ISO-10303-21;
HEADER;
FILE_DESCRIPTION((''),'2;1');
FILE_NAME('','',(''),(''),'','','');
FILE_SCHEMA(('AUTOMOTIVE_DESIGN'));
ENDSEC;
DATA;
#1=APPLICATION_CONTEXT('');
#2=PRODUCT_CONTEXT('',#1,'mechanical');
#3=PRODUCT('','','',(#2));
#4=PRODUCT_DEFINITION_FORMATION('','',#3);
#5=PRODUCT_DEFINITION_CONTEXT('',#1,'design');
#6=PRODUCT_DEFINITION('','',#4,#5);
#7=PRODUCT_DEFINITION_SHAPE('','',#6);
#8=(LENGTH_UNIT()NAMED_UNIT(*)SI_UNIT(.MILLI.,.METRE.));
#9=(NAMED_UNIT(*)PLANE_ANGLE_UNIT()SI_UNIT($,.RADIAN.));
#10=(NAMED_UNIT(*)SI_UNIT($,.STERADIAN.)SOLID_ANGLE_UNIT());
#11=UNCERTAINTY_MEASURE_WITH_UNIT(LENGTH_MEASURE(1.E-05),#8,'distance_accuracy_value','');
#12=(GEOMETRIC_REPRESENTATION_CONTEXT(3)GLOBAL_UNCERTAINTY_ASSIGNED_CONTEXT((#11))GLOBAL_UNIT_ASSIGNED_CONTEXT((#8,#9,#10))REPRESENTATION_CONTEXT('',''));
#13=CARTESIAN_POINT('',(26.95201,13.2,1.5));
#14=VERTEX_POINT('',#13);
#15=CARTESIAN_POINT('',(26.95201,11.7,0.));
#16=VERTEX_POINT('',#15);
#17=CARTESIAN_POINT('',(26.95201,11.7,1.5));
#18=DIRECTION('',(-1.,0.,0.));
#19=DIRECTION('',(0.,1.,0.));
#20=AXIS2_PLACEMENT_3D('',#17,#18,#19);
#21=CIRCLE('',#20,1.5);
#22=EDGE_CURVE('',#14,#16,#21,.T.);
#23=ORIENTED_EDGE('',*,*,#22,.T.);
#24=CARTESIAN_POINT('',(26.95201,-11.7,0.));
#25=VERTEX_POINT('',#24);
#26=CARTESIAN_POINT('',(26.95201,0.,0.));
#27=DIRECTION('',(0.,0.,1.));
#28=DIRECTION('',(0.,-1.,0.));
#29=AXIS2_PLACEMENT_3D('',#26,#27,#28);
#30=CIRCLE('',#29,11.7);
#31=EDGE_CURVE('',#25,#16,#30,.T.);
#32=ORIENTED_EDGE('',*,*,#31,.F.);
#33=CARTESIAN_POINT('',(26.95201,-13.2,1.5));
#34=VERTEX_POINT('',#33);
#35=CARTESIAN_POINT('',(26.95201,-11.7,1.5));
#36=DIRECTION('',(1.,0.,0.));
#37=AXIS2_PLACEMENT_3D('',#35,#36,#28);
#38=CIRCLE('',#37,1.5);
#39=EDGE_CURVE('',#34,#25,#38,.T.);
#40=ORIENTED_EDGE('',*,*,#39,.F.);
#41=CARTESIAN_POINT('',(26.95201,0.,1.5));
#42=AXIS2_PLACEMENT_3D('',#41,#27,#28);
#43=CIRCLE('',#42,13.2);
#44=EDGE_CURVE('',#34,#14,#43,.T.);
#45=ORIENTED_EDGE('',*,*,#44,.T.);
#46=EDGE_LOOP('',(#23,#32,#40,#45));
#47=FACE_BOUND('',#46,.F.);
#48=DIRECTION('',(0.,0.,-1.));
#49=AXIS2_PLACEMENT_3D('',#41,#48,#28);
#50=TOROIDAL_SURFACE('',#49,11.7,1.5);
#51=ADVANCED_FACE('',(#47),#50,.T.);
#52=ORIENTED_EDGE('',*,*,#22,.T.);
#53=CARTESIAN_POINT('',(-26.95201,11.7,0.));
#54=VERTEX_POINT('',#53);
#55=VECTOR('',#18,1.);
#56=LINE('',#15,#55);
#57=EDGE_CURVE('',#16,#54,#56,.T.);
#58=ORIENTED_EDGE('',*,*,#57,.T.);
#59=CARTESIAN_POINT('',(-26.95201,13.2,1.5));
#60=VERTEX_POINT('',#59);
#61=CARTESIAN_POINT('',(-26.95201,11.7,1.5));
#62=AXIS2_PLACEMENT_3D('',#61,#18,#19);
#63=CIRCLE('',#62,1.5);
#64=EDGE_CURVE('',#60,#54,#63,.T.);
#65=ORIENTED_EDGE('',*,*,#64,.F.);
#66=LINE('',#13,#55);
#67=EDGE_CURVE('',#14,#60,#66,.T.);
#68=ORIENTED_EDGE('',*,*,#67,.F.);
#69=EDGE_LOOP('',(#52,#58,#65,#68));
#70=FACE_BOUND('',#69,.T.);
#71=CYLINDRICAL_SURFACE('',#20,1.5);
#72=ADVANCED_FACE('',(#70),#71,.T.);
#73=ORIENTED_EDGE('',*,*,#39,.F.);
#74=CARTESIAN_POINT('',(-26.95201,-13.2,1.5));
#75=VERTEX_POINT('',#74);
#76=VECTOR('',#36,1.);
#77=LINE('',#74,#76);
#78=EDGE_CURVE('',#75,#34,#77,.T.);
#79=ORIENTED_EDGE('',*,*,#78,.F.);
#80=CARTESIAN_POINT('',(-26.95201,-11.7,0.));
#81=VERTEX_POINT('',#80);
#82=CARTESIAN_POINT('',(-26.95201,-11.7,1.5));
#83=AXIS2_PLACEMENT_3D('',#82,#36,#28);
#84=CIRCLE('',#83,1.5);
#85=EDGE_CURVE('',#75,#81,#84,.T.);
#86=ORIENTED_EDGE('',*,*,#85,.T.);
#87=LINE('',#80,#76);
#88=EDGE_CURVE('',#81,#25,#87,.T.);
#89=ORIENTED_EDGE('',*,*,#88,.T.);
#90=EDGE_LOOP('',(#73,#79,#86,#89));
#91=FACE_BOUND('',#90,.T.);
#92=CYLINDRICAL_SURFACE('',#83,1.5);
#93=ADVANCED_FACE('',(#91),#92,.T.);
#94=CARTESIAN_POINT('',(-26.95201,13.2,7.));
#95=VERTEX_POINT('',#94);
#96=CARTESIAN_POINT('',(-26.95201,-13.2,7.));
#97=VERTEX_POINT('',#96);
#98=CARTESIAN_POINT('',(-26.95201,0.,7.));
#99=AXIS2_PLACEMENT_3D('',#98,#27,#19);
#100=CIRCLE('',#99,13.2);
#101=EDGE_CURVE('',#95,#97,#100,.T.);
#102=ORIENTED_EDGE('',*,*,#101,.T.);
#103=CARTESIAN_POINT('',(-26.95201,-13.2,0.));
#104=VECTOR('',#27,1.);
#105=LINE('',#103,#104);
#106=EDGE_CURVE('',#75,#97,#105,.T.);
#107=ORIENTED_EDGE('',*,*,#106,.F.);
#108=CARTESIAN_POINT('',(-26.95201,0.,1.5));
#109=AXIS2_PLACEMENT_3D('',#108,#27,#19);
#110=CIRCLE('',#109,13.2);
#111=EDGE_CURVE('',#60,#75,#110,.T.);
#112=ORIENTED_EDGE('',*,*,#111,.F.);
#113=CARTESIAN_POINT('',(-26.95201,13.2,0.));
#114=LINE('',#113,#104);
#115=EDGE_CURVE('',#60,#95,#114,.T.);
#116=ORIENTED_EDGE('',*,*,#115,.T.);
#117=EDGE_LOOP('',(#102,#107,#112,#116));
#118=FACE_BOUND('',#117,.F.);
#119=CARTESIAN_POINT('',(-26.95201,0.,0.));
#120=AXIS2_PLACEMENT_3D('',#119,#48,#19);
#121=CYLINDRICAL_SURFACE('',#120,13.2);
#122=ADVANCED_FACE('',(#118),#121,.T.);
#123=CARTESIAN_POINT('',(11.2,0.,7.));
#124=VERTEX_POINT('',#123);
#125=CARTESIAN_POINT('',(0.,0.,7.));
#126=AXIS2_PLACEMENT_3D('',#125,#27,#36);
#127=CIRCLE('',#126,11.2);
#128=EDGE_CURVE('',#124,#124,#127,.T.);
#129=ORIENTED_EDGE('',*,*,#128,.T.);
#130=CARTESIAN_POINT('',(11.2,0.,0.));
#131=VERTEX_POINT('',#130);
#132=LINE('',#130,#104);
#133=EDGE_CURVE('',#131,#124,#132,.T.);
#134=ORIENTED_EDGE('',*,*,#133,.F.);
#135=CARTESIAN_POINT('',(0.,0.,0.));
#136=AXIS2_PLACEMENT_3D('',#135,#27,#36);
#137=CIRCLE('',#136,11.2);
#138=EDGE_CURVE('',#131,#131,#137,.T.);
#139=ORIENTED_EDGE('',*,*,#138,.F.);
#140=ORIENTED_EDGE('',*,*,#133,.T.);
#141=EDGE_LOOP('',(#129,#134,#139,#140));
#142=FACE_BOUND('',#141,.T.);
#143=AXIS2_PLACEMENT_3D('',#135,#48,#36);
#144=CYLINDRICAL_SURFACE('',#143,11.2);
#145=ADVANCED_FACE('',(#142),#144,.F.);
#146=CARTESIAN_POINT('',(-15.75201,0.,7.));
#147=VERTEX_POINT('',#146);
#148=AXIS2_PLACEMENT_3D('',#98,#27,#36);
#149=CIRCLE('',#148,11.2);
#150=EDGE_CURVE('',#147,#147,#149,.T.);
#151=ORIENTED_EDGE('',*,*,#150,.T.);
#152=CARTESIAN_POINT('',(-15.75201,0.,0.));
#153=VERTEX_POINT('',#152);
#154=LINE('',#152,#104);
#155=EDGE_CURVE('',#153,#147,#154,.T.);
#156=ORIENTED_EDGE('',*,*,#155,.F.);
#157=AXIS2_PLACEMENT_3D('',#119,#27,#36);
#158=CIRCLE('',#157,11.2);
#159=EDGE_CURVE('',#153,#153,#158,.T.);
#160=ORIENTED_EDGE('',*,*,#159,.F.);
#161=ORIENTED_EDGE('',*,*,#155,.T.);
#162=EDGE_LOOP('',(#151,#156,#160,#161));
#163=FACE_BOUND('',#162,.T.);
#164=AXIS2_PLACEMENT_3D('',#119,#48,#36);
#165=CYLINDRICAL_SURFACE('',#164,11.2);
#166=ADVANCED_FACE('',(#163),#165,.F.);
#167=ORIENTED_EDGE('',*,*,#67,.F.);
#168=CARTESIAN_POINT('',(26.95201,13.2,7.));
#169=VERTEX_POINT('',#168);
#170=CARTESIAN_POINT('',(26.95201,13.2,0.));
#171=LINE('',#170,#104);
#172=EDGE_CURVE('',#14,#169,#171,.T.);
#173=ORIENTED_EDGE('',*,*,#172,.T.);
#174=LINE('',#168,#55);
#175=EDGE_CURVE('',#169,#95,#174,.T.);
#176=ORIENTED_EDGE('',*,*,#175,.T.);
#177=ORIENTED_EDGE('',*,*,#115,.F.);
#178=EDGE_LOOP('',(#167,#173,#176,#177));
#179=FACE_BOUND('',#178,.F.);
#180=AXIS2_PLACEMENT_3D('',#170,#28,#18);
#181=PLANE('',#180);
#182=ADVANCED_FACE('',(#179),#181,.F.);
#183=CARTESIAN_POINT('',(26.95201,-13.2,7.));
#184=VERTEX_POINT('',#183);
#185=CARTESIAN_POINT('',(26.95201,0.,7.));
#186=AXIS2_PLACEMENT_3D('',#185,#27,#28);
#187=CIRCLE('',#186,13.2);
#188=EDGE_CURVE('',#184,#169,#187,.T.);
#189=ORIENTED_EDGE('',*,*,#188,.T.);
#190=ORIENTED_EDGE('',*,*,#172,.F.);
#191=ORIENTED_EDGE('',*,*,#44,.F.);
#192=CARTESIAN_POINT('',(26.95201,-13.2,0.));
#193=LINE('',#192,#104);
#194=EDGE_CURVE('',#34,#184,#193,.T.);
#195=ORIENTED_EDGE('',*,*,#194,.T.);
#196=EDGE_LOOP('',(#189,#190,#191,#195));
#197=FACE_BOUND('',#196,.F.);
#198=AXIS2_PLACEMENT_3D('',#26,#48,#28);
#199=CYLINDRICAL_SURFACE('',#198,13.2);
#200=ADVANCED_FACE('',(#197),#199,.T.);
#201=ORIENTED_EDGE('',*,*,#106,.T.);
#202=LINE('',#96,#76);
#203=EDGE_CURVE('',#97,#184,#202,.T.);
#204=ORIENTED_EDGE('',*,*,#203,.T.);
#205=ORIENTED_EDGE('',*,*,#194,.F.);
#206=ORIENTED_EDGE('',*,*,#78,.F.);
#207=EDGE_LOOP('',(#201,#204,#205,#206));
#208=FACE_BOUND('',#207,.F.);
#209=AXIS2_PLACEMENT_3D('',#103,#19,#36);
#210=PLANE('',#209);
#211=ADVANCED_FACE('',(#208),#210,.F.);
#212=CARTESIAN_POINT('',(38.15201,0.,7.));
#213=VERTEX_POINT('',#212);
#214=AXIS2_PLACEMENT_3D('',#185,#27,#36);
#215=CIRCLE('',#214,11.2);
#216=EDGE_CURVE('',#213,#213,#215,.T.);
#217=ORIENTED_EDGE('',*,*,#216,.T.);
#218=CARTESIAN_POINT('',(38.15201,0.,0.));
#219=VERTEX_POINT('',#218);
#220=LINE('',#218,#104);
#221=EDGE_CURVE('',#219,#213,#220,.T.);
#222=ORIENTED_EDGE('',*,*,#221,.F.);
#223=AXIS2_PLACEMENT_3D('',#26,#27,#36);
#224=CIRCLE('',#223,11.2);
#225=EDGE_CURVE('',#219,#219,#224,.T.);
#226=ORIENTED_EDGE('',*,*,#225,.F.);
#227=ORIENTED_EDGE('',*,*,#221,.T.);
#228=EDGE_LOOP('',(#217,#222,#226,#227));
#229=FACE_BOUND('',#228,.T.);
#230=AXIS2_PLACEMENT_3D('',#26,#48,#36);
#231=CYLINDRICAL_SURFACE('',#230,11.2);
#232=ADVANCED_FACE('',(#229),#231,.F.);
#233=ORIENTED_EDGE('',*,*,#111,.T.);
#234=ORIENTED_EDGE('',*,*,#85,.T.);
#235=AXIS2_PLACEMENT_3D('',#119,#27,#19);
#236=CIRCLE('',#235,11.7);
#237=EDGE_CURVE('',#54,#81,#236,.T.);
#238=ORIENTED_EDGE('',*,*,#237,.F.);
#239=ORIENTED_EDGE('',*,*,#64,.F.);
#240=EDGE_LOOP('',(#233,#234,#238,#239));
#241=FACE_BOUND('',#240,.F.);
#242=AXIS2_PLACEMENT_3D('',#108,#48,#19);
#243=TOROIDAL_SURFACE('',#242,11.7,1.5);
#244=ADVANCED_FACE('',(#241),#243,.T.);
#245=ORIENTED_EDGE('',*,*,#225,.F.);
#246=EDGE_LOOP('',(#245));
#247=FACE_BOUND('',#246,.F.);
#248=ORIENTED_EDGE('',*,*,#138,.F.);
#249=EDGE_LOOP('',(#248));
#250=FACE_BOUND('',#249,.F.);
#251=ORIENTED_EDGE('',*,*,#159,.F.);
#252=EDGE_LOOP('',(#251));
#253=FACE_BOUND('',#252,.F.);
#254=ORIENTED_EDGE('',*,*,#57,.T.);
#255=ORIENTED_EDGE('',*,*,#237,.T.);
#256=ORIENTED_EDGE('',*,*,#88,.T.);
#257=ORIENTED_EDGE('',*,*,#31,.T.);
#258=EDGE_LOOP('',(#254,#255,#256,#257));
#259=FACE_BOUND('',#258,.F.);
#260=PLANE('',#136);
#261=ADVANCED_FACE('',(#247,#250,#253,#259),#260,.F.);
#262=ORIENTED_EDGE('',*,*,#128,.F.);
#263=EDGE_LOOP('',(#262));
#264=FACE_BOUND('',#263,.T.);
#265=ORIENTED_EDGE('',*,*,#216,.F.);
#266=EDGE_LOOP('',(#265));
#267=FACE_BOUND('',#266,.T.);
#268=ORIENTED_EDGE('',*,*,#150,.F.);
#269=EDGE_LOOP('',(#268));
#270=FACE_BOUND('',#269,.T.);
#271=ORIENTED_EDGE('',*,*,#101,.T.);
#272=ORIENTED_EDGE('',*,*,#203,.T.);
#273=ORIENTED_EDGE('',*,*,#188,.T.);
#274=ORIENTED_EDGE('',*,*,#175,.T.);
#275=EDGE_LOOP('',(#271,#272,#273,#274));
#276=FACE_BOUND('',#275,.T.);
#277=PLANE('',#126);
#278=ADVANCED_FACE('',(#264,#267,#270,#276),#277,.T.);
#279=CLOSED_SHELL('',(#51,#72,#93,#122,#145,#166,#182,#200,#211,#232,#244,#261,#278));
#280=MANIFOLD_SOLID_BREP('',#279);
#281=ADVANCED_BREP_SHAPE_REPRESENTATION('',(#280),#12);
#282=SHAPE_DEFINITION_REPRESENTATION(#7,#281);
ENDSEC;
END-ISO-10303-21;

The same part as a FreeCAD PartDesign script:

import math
import FreeCAD as App
import Part
import Sketcher

V = App.Vector


def edges_at(feature, points):
    """Names of the edges that pass closest to the given points."""
    edges = feature.Shape.Edges
    near = lambda p: min(range(len(edges)), key=lambda i: edges[i].distToShape(Part.Vertex(*p))[0])
    return sorted({f"Edge{near(p) + 1}" for p in points})

doc = App.newDocument("Part")
body = doc.addObject("PartDesign::Body", "Body")

# Sketch on XY plane
sketch1 = body.newObject("Sketcher::SketchObject", "Sketch")
sketch1.AttachmentSupport = (doc.getObject("XY_Plane"), [""])
sketch1.MapMode = "FlatFace"
sketch1.addGeometry([
    Part.ArcOfCircle(Part.Circle(V(-27, 0, 0), V(0, 0, 1), 13), math.radians(90), math.radians(270)),  # 0
    Part.LineSegment(V(-27, -13, 0), V(27, -13, 0)),  # 1
    Part.ArcOfCircle(Part.Circle(V(27, 0, 0), V(0, 0, 1), 13), math.radians(-90), math.radians(90)),  # 2
    Part.LineSegment(V(27, 13, 0), V(-27, 13, 0)),  # 3
    Part.Circle(V(-27, 0, 0), V(0, 0, 1), 11),  # 4
    Part.Circle(V(0, 0, 0), V(0, 0, 1), 11),  # 5
    Part.Circle(V(27, 0, 0), V(0, 0, 1), 11),  # 6
], False)
sketch1.addConstraint([
    Sketcher.Constraint("Tangent", 0, 2, 1, 1),
    Sketcher.Constraint("Tangent", 1, 2, 2, 1),
    Sketcher.Constraint("Tangent", 2, 2, 3, 1),
    Sketcher.Constraint("Tangent", 3, 2, 0, 1),
    Sketcher.Constraint("Horizontal", 1),
    Sketcher.Constraint("Horizontal", 3),
    Sketcher.Constraint("Coincident", 5, 3, -1, 1),
    Sketcher.Constraint("Coincident", 4, 3, 0, 3),
    Sketcher.Constraint("Coincident", 6, 3, 2, 3),
    Sketcher.Constraint("Equal", 4, 5),
    Sketcher.Constraint("Equal", 5, 6),
    Sketcher.Constraint("Symmetric", 0, 3, 2, 3, -1, 1),
    Sketcher.Constraint("Diameter", 4, 22.4),
    Sketcher.Constraint("Radius", 0, 13.2),
    Sketcher.Constraint("DistanceX", 1, 1, 1, 2, 53.90402),
])
pad1 = body.newObject("PartDesign::Pad", "Pad")
pad1.Profile = sketch1
pad1.Length = 7
doc.recompute()

fillet = body.newObject("PartDesign::Fillet", "Fillet")
fillet.Base = (pad1, edges_at(pad1, [
    (0, 13.2, 0),
    (-40.152, 0, 0),
    (0, -13.2, 0),
    (40.152, 0, 0),
]))
fillet.Radius = 1.5

doc.recompute()
